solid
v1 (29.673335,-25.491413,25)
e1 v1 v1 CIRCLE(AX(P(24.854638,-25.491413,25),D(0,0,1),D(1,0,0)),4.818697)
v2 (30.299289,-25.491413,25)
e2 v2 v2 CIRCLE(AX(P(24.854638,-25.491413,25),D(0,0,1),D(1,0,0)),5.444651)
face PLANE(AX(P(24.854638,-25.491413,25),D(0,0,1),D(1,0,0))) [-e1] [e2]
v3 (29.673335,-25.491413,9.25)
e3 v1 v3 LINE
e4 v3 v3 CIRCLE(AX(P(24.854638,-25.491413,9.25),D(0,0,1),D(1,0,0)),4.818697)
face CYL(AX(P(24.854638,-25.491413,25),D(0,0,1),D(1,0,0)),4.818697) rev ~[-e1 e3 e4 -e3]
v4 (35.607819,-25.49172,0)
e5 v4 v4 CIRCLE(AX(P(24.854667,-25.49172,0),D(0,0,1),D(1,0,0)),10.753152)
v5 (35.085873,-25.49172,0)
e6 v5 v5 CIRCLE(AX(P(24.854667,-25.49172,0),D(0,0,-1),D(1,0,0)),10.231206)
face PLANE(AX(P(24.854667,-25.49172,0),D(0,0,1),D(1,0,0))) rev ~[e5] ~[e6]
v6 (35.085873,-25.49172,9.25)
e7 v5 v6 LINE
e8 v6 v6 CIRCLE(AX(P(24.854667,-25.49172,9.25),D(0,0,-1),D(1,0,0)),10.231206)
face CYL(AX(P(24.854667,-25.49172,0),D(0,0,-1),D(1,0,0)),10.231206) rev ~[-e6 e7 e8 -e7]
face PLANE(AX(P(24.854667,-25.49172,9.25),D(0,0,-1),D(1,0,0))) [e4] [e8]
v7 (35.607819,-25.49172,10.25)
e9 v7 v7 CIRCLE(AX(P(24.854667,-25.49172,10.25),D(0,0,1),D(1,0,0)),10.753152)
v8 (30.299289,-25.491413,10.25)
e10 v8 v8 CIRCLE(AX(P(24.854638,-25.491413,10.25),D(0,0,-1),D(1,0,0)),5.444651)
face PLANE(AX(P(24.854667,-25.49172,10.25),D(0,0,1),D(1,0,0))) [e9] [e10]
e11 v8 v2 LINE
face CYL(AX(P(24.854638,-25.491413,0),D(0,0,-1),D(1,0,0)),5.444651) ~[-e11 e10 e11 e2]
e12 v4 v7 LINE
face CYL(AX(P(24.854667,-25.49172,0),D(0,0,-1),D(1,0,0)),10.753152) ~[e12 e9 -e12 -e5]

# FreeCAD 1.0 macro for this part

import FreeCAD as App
import Part
import Sketcher
from FreeCAD import Vector
Q = App.Units.Quantity

doc = App.newDocument("Part")
params = doc.addObject("Spreadsheet::Sheet", "Params")
for row, (alias, value) in enumerate([
    ("pad1_length", "25 mm"),
    ("pad2_length", "10.25 mm"),
    ("pad3_length", "9.25 mm"),
    ("pad4_length", "9.25 mm"),
    ("pocket1_length", "9.25 mm"),
    ("pocket2_length", "25 mm"),
], start=1):
    params.set(f"A{row}", alias)
    params.set(f"B{row}", "=" + value)
    params.setAlias(f"B{row}", alias)

body = doc.addObject("PartDesign::Body", "Body")

sketch1 = body.newObject("Sketcher::SketchObject", "Sketch")
sketch1.AttachmentSupport = (doc.getObject("XY_Plane"), [""])
sketch1.MapMode = "FlatFace"
sketch1.addGeometry(Part.Circle(Vector(25, -25, 0), Vector(0, 0, 1), 5), False)
sketch1.addConstraint(Sketcher.Constraint("Diameter", 0, Q("10.889302 mm")))
sketch1.addConstraint(Sketcher.Constraint("DistanceX", -1, 1, 0, 3, Q("24.854638 mm")))
sketch1.addConstraint(Sketcher.Constraint("DistanceY", 0, 3, -1, 1, Q("25.491413 mm")))
pad1 = body.newObject("PartDesign::Pad", "Pad")
pad1.Profile = sketch1
pad1.setExpression("Length", "Params.pad1_length")

sketch2 = body.newObject("Sketcher::SketchObject", "Sketch001")
sketch2.AttachmentSupport = (doc.getObject("XY_Plane"), [""])
sketch2.MapMode = "FlatFace"
sketch2.addGeometry(Part.Circle(Vector(25, -25, 0), Vector(0, 0, 1), 11), False)
sketch2.addConstraint(Sketcher.Constraint("Diameter", 0, Q("21.506304 mm")))
sketch2.addConstraint(Sketcher.Constraint("DistanceY", 0, 3, -1, 1, Q("25.49172 mm")))
sketch2.addConstraint(Sketcher.Constraint("DistanceX", -1, 1, 0, 3, Q("24.854667 mm")))
pad2 = body.newObject("PartDesign::Pad", "Pad001")
pad2.Profile = sketch2
pad2.setExpression("Length", "Params.pad2_length")

sketch3 = body.newObject("Sketcher::SketchObject", "Sketch002")
sketch3.AttachmentSupport = (doc.getObject("XY_Plane"), [""])
sketch3.MapMode = "FlatFace"
sketch3.addGeometry(Part.Circle(Vector(25, -25, 0), Vector(0, 0, 1), 10), False)
sketch3.addConstraint(Sketcher.Constraint("Diameter", 0, Q("19.975946 mm")))
sketch3.addConstraint(Sketcher.Constraint("DistanceY", 0, 3, -1, 1, Q("25.49172 mm")))
sketch3.addConstraint(Sketcher.Constraint("DistanceX", -1, 1, 0, 3, Q("24.854667 mm")))
pad3 = body.newObject("PartDesign::Pad", "Pad002")
pad3.Profile = sketch3
pad3.setExpression("Length", "Params.pad3_length")

sketch4 = body.newObject("Sketcher::SketchObject", "Sketch003")
sketch4.AttachmentSupport = (doc.getObject("XY_Plane"), [""])
sketch4.MapMode = "FlatFace"
sketch4.addGeometry(Part.Circle(Vector(25, -25, 0), Vector(0, 0, 1), 10), False)
sketch4.addConstraint(Sketcher.Constraint("Diameter", 0, Q("20.237352 mm")))
sketch4.addConstraint(Sketcher.Constraint("DistanceY", 0, 3, -1, 1, Q("25.49172 mm")))
sketch4.addConstraint(Sketcher.Constraint("DistanceX", -1, 1, 0, 3, Q("24.854667 mm")))
pad4 = body.newObject("PartDesign::Pad", "Pad003")
pad4.Profile = sketch4
pad4.setExpression("Length", "Params.pad4_length")

sketch5 = body.newObject("Sketcher::SketchObject", "Sketch004")
sketch5.AttachmentSupport = (doc.getObject("XY_Plane"), [""])
sketch5.MapMode = "FlatFace"
sketch5.addGeometry(Part.Circle(Vector(25, -25, 0), Vector(0, 0, 1), 10), False)
sketch5.addConstraint(Sketcher.Constraint("Diameter", 0, Q("20.462412 mm")))
sketch5.addConstraint(Sketcher.Constraint("DistanceY", 0, 3, -1, 1, Q("25.49172 mm")))
sketch5.addConstraint(Sketcher.Constraint("DistanceX", -1, 1, 0, 3, Q("24.854667 mm")))
pocket1 = body.newObject("PartDesign::Pocket", "Pocket")
pocket1.Profile = sketch5
pocket1.setExpression("Length", "Params.pocket1_length")
pocket1.Reversed = True

sketch6 = body.newObject("Sketcher::SketchObject", "Sketch005")
sketch6.AttachmentSupport = (doc.getObject("XY_Plane"), [""])
sketch6.MapMode = "FlatFace"
sketch6.AttachmentOffset = App.Placement(Vector(0, 0, 25), App.Rotation())
sketch6.addGeometry(Part.Circle(Vector(24.9, -25.5, 0), Vector(0, 0, 1), 4.8), False)
sketch6.addConstraint(Sketcher.Constraint("Diameter", 0, Q("9.637394 mm")))
sketch6.addConstraint(Sketcher.Constraint("DistanceX", -1, 1, 0, 3, Q("24.854638 mm")))
sketch6.addConstraint(Sketcher.Constraint("DistanceY", 0, 3, -1, 1, Q("25.491413 mm")))
pocket2 = body.newObject("PartDesign::Pocket", "Pocket001")
pocket2.Profile = sketch6
pocket2.setExpression("Length", "Params.pocket2_length")

doc.recompute()
